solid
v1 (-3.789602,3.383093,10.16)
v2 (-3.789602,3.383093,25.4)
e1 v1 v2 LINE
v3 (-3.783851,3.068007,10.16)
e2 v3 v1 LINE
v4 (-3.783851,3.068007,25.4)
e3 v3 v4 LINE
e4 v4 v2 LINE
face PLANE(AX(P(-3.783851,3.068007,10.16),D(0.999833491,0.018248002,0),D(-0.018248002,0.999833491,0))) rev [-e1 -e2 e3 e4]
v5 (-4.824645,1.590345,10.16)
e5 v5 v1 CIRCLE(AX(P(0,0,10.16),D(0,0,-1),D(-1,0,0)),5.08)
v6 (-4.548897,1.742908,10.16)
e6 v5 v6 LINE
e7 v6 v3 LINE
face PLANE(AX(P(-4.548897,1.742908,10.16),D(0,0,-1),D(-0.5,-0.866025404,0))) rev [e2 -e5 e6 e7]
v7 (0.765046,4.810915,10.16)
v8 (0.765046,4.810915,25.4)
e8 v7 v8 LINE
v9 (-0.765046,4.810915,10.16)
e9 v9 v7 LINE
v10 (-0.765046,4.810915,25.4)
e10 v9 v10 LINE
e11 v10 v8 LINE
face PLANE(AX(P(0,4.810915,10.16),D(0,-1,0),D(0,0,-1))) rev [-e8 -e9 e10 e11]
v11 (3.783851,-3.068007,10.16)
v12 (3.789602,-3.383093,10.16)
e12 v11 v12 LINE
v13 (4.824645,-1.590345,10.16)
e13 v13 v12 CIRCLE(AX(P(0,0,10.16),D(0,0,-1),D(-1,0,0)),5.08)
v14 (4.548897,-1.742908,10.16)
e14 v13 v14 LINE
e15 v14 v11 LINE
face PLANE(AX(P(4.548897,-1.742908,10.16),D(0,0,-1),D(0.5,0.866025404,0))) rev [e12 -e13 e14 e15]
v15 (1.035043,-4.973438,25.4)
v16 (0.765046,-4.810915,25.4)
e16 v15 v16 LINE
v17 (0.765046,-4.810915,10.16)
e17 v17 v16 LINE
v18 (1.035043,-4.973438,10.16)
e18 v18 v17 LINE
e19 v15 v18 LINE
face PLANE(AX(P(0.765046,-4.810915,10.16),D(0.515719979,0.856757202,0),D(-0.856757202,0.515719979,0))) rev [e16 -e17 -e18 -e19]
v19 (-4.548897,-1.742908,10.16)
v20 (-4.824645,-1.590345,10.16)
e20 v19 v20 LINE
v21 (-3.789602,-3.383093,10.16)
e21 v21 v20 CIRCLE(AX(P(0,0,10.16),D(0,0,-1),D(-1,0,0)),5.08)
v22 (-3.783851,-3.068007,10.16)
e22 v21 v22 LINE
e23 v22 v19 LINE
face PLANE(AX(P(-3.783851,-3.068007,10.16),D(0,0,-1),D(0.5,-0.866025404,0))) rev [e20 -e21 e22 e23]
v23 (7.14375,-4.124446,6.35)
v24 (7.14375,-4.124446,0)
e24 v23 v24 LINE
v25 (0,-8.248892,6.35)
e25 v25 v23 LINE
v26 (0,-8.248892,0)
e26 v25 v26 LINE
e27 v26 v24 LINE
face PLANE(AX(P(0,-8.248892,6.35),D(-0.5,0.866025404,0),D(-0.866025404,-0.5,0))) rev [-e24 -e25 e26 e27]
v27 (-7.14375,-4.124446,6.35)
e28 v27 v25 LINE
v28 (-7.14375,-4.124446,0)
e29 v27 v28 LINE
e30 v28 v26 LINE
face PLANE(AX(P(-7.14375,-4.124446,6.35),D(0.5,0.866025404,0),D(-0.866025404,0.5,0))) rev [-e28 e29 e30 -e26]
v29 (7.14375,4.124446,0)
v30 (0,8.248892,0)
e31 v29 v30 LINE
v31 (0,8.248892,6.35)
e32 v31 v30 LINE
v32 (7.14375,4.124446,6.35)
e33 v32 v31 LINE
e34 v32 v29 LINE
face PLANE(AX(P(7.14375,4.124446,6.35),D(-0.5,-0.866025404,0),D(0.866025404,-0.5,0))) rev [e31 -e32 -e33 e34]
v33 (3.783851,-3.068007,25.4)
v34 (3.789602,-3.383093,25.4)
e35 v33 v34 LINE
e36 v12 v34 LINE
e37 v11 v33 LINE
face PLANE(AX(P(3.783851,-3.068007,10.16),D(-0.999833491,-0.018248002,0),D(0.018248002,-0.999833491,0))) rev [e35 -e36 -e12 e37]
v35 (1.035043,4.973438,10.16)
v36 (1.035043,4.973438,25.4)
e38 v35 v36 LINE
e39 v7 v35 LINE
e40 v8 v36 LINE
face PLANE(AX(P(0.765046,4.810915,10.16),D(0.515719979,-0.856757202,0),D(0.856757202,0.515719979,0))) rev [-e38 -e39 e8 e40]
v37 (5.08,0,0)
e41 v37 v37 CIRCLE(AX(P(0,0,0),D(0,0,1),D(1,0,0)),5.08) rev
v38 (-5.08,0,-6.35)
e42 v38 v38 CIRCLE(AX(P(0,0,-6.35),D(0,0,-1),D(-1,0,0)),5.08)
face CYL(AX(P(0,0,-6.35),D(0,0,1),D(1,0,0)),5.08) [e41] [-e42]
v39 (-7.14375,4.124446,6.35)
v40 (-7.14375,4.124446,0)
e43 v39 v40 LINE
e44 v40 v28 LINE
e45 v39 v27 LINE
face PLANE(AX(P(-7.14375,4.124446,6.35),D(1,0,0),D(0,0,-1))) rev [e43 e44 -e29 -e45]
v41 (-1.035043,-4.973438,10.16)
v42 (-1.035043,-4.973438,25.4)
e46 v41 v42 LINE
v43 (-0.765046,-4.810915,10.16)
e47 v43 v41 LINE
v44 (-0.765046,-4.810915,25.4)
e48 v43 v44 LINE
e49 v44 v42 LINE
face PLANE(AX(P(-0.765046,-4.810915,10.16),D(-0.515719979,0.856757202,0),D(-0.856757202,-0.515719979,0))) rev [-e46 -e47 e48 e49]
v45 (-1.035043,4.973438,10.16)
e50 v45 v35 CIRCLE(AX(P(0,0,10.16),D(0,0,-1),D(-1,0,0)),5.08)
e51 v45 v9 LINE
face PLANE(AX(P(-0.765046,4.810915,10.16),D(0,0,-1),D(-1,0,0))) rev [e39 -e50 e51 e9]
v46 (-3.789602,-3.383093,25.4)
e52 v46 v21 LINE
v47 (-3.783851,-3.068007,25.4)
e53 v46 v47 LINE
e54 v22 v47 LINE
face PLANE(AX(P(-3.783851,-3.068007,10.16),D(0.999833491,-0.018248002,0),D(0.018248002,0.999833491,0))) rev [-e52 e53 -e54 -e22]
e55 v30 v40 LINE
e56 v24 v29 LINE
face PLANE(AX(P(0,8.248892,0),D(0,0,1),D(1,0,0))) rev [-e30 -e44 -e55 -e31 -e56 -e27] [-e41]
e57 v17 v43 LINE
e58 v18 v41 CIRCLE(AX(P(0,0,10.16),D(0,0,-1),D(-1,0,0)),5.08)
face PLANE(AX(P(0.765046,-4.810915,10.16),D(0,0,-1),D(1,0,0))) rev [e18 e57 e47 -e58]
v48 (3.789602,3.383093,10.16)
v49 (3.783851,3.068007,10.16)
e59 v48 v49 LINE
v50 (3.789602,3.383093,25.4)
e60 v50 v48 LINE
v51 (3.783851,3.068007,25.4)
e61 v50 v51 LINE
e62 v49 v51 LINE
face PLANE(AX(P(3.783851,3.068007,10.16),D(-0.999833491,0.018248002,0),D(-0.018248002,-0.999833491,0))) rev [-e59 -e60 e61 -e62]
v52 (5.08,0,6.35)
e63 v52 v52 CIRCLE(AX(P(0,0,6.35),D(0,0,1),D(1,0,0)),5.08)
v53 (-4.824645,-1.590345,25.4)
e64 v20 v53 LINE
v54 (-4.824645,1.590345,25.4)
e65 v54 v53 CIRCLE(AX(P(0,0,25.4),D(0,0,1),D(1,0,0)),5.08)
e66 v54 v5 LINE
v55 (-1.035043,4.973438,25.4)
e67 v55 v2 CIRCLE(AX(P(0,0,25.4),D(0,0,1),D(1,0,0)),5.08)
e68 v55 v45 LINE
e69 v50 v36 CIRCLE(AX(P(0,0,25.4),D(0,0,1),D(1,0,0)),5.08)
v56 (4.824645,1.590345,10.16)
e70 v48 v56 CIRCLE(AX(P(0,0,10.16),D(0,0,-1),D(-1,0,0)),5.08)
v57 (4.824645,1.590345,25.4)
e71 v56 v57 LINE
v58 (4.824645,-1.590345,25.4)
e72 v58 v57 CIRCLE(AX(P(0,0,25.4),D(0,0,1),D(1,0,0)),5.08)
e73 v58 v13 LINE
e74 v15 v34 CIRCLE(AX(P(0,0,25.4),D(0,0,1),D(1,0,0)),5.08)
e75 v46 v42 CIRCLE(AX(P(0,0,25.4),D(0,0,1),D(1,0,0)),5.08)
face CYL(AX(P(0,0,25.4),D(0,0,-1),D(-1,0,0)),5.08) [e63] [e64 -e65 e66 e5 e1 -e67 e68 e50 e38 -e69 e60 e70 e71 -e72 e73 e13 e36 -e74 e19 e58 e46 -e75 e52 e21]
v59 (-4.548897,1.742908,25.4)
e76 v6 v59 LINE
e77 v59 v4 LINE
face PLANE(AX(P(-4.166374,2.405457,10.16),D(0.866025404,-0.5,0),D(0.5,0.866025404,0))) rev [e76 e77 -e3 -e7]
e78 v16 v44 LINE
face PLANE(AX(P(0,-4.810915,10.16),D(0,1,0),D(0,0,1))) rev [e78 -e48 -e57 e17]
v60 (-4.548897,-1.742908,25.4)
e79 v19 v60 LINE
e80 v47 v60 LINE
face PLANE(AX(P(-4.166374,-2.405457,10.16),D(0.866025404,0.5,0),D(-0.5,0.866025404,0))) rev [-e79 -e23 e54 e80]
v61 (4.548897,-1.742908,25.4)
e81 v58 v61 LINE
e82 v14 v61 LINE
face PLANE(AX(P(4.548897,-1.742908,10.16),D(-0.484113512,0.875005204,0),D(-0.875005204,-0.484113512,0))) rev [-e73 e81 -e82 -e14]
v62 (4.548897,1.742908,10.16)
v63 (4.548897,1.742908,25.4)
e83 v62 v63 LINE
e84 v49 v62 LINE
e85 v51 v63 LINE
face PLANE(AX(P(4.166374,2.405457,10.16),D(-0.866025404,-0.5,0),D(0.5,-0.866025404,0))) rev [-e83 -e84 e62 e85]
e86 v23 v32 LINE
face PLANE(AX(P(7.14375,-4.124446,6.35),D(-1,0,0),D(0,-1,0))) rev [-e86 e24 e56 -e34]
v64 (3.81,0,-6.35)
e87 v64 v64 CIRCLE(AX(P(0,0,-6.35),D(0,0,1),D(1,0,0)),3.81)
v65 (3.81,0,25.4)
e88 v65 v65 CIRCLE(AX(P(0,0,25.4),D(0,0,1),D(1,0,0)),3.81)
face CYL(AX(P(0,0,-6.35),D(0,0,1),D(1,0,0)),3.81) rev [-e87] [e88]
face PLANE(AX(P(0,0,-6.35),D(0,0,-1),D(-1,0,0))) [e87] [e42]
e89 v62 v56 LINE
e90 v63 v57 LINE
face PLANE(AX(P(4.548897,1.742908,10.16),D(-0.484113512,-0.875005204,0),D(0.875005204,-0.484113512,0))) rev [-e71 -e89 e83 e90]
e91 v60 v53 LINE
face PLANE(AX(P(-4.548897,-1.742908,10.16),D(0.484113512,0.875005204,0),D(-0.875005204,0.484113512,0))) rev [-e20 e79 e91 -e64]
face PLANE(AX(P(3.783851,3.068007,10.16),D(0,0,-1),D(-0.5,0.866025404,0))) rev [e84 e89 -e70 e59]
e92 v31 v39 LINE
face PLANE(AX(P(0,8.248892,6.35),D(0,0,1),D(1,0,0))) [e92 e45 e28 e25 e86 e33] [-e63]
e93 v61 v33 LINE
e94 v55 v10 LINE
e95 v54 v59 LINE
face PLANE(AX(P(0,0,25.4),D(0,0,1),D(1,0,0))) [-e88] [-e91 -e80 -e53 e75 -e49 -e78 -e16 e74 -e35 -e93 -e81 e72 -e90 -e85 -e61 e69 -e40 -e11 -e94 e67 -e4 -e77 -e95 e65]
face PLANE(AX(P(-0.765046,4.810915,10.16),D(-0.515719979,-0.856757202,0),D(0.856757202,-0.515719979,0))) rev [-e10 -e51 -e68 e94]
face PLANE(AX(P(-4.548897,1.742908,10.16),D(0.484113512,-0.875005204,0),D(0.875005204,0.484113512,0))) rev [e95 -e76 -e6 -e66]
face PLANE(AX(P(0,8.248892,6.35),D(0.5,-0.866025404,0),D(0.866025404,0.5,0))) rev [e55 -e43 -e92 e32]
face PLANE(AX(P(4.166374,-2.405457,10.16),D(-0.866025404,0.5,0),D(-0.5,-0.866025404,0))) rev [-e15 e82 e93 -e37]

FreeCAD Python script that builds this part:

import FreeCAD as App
import Part
import Sketcher
Q = App.Units.Quantity


def add_polygon(sketch, points):
    """Adds a closed chain of lines whose ends are joined by coincident constraints."""
    first, n = sketch.GeometryCount, len(points)
    for a, b in zip(points, points[1:] + points[:1]):
        sketch.addGeometry(Part.LineSegment(App.Vector(*a, 0), App.Vector(*b, 0)), False)
    for i in range(n):
        sketch.addConstraint(Sketcher.Constraint("Coincident", first + i, 2, first + (i + 1) % n, 1))

doc = App.newDocument("Part")
body = doc.addObject("PartDesign::Body", "Body")

# Sketch on XY plane
sketch1 = body.newObject("Sketcher::SketchObject", "Sketch")
sketch1.AttachmentSupport = (doc.getObject("XY_Plane"), [""])
sketch1.MapMode = "FlatFace"
add_polygon(sketch1, [(0, 8.248892), (-7.14375, 4.124446), (-7.14375, -4.124446), (0, -8.248892), (7.14375, -4.124446), (7.14375, 4.124446)])  # lines 0-5
sketch1.addConstraint([
    Sketcher.Constraint("Vertical", 1),
    Sketcher.Constraint("Vertical", 4),
    Sketcher.Constraint("Symmetric", 0, 2, 3, 2, -1, 1),
    Sketcher.Constraint("Symmetric", 2, 2, 5, 2, -1, 1),
    Sketcher.Constraint("PointOnObject", 2, 2, -2),
    Sketcher.Constraint("Parallel", 2, 5),
    Sketcher.Constraint("Horizontal", 1, 2, 3, 2),
    Sketcher.Constraint("Angle", 0, Q("-150 deg")),
    Sketcher.Constraint("DistanceX", 0, 2, -1, 1, Q("0.28125 in")),
    Sketcher.Constraint("DistanceY", 1, 2, 1, 1, 8.248892),
])
pad1 = body.newObject("PartDesign::Pad", "Pad")
pad1.Profile = sketch1
pad1.Length = Q("0.25 in")

# Sketch on XY plane
sketch2 = body.newObject("Sketcher::SketchObject", "Sketch001")
sketch2.AttachmentSupport = (doc.getObject("XY_Plane"), [""])
sketch2.MapMode = "FlatFace"
sketch2.addGeometry(Part.Circle(App.Vector(0, 0, 0), App.Vector(0, 0, 1), 5.08), False)
sketch2.addConstraint([
    Sketcher.Constraint("Coincident", 0, 3, -1, 1),
    Sketcher.Constraint("Diameter", 0, Q("0.4 in")),
])
pad2 = body.newObject("PartDesign::Pad", "Pad001")
pad2.Profile = sketch2
pad2.Length = Q("0.25 in")
pad2.Reversed = True

# Sketch on XY plane
sketch3 = body.newObject("Sketcher::SketchObject", "Sketch002")
sketch3.AttachmentSupport = (doc.getObject("XY_Plane"), [""])
sketch3.MapMode = "FlatFace"
sketch3.AttachmentOffset = App.Placement(App.Vector(0, 0, 0.25 * 25.4), App.Rotation())
sketch3.addGeometry(Part.Circle(App.Vector(0, 0, 0), App.Vector(0, 0, 1), 5.08), False)
sketch3.addConstraint([
    Sketcher.Constraint("Coincident", 0, 3, -1, 1),
    Sketcher.Constraint("Diameter", 0, Q("0.4 in")),
])
pad3 = body.newObject("PartDesign::Pad", "Pad002")
pad3.Profile = sketch3
pad3.Length = Q("0.75 in")

# Sketch on XY plane
sketch4 = body.newObject("Sketcher::SketchObject", "Sketch003")
sketch4.AttachmentSupport = (doc.getObject("XY_Plane"), [""])
sketch4.MapMode = "FlatFace"
sketch4.AttachmentOffset = App.Placement(App.Vector(0, 0, 1 * 25.4), App.Rotation())
sketch4.addGeometry(Part.Circle(App.Vector(0, 0, 0), App.Vector(0, 0, 1), 3.81), False)
sketch4.addConstraint([
    Sketcher.Constraint("Coincident", 0, 3, -1, 1),
    Sketcher.Constraint("Diameter", 0, Q("0.3 in")),
])
pocket1 = body.newObject("PartDesign::Pocket", "Pocket")
pocket1.Profile = sketch4
pocket1.Type = "ThroughAll"

# Sketch on XY plane
sketch5 = body.newObject("Sketcher::SketchObject", "Sketch004")
sketch5.AttachmentSupport = (doc.getObject("XY_Plane"), [""])
sketch5.MapMode = "FlatFace"
sketch5.AttachmentOffset = App.Placement(App.Vector(0, 0, 1 * 25.4), App.Rotation())
add_polygon(sketch5, [(0.765046, 4.810915), (1.27, 5.114869), (-1.27, 5.114869), (-0.765046, 4.810915)])  # lines 0-3
sketch5.addConstraint([
    Sketcher.Constraint("Horizontal", 1),
    Sketcher.Constraint("Horizontal", 3),
    Sketcher.Constraint("Equal", 0, 2),
    Sketcher.Constraint("DistanceX", 1, 2, 1, 1, Q("0.1 in")),
    Sketcher.Constraint("DistanceX", -1, 1, 0, 2, Q("0.05 in")),
    Sketcher.Constraint("DistanceX", 3, 1, 3, 2, 1.530092),
    Sketcher.Constraint("Distance", 0, 0.589378),
    Sketcher.Constraint("DistanceY", -1, 1, 0, 2, 5.114869),
])
pocket2 = body.newObject("PartDesign::Pocket", "Pocket001")
pocket2.Profile = sketch5
pocket2.Length = Q("0.6 in")
doc.recompute()

polarpattern = body.newObject("PartDesign::PolarPattern", "PolarPattern")
polarpattern.Originals = [pocket2]
polarpattern.Axis = (doc.getObject("Z_Axis"), [""])
polarpattern.Angle = 360
polarpattern.Occurrences = 6
body.Tip = polarpattern

doc.recompute()
